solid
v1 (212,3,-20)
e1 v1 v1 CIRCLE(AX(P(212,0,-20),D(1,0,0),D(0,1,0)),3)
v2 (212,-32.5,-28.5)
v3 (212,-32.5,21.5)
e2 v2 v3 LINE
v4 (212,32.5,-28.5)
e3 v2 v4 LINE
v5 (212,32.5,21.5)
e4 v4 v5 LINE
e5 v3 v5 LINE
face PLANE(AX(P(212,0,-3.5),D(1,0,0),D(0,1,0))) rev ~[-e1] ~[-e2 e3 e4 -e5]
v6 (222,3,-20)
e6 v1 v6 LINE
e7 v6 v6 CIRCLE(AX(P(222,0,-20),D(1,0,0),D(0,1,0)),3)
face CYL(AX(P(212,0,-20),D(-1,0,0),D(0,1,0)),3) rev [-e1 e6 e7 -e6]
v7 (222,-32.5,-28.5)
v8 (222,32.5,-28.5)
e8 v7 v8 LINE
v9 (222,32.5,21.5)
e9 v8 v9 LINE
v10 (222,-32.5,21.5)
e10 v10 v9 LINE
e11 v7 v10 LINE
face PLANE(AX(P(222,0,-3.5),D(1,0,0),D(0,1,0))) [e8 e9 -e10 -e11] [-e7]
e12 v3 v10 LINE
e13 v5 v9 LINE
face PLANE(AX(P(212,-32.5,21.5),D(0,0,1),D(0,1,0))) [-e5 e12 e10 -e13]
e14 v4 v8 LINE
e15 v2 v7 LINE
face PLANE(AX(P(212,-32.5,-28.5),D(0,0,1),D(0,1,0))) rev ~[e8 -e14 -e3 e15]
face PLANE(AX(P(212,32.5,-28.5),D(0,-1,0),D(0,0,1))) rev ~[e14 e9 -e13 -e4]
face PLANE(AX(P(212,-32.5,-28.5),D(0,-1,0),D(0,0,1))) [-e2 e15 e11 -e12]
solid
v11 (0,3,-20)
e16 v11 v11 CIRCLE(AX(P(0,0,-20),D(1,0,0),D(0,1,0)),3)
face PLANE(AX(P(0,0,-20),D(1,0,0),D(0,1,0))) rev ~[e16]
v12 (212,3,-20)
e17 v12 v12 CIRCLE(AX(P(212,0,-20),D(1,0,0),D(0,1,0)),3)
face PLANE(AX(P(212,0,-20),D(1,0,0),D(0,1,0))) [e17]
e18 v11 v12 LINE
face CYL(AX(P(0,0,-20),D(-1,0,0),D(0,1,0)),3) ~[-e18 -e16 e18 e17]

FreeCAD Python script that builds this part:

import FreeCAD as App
import Part
import Sketcher
from FreeCAD import Vector
Q = App.Units.Quantity

doc = App.newDocument("Part")
params = doc.addObject("Spreadsheet::Sheet", "Params")
for row, (alias, value) in enumerate([
    ("sketch1_diameter", "6 mm"),
    ("pad1_length", "212 mm"),
    ("sketch2_diameter", "6 mm"),
    ("sketch2_width", "65 mm"),
    ("sketch2_height", "50 mm"),
    ("pad2_length", "10 mm"),
], start=1):
    params.set(f"A{row}", alias)
    params.set(f"B{row}", "=" + value)
    params.setAlias(f"B{row}", alias)

body = doc.addObject("PartDesign::Body", "Body")
body.AllowCompound = True

# Sketch on YZ plane
sketch1 = body.newObject("Sketcher::SketchObject", "Sketch")
sketch1.AttachmentSupport = (doc.getObject("YZ_Plane"), [""])
sketch1.MapMode = "FlatFace"
sketch1.addGeometry(Part.Circle(Vector(0, -20, 0), Vector(0, 0, 1), 3), False)
sketch1.addConstraint([
    Sketcher.Constraint("PointOnObject", 0, 3, -2),
    Sketcher.Constraint("Diameter", 0, Q("6 mm")),
    Sketcher.Constraint("DistanceY", 0, 3, -1, 1, Q("20 mm")),
])
sketch1.setExpression("Constraints[1]", "Params.sketch1_diameter")
pad1 = body.newObject("PartDesign::Pad", "Pad")
pad1.Profile = sketch1
pad1.setExpression("Length", "Params.pad1_length")

# Sketch on YZ plane
sketch2 = body.newObject("Sketcher::SketchObject", "Sketch001")
sketch2.AttachmentSupport = (doc.getObject("YZ_Plane"), [""])
sketch2.MapMode = "FlatFace"
sketch2.AttachmentOffset = App.Placement(Vector(0, 0, 212), App.Rotation())
sketch2.addGeometry([
    Part.LineSegment(Vector(-32.5, 21.5, 0), Vector(-32.5, -28.5, 0)),  # 0
    Part.LineSegment(Vector(-32.5, -28.5, 0), Vector(32.5, -28.5, 0)),  # 1
    Part.LineSegment(Vector(32.5, -28.5, 0), Vector(32.5, 21.5, 0)),  # 2
    Part.LineSegment(Vector(32.5, 21.5, 0), Vector(-32.5, 21.5, 0)),  # 3
    Part.Circle(Vector(0, -20, 0), Vector(0, 0, 1), 3),  # 4
], False)
sketch2.addConstraint([
    Sketcher.Constraint("Coincident", 0, 2, 1, 1),
    Sketcher.Constraint("Coincident", 1, 2, 2, 1),
    Sketcher.Constraint("Coincident", 2, 2, 3, 1),
    Sketcher.Constraint("Coincident", 3, 2, 0, 1),
    Sketcher.Constraint("Vertical", 0),
    Sketcher.Constraint("Horizontal", 1),
    Sketcher.Constraint("Vertical", 2),
    Sketcher.Constraint("Horizontal", 3),
    Sketcher.Constraint("PointOnObject", 4, 3, -2),
    Sketcher.Constraint("Diameter", 4, Q("6 mm")),
    Sketcher.Constraint("DistanceX", 1, 1, 1, 2, Q("65 mm")),
    Sketcher.Constraint("DistanceY", 0, 2, 0, 1, Q("50 mm")),
    Sketcher.Constraint("DistanceY", 4, 3, -1, 1, Q("20 mm")),
    Sketcher.Constraint("DistanceX", 0, 2, -1, 1, Q("32.5 mm")),
    Sketcher.Constraint("DistanceY", 0, 2, -1, 1, Q("28.5 mm")),
])
sketch2.setExpression("Constraints[9]", "Params.sketch2_diameter")
sketch2.setExpression("Constraints[10]", "Params.sketch2_width")
sketch2.setExpression("Constraints[11]", "Params.sketch2_height")
pad2 = body.newObject("PartDesign::Pad", "Pad001")
pad2.Profile = sketch2
pad2.setExpression("Length", "Params.pad2_length")

doc.recompute()
